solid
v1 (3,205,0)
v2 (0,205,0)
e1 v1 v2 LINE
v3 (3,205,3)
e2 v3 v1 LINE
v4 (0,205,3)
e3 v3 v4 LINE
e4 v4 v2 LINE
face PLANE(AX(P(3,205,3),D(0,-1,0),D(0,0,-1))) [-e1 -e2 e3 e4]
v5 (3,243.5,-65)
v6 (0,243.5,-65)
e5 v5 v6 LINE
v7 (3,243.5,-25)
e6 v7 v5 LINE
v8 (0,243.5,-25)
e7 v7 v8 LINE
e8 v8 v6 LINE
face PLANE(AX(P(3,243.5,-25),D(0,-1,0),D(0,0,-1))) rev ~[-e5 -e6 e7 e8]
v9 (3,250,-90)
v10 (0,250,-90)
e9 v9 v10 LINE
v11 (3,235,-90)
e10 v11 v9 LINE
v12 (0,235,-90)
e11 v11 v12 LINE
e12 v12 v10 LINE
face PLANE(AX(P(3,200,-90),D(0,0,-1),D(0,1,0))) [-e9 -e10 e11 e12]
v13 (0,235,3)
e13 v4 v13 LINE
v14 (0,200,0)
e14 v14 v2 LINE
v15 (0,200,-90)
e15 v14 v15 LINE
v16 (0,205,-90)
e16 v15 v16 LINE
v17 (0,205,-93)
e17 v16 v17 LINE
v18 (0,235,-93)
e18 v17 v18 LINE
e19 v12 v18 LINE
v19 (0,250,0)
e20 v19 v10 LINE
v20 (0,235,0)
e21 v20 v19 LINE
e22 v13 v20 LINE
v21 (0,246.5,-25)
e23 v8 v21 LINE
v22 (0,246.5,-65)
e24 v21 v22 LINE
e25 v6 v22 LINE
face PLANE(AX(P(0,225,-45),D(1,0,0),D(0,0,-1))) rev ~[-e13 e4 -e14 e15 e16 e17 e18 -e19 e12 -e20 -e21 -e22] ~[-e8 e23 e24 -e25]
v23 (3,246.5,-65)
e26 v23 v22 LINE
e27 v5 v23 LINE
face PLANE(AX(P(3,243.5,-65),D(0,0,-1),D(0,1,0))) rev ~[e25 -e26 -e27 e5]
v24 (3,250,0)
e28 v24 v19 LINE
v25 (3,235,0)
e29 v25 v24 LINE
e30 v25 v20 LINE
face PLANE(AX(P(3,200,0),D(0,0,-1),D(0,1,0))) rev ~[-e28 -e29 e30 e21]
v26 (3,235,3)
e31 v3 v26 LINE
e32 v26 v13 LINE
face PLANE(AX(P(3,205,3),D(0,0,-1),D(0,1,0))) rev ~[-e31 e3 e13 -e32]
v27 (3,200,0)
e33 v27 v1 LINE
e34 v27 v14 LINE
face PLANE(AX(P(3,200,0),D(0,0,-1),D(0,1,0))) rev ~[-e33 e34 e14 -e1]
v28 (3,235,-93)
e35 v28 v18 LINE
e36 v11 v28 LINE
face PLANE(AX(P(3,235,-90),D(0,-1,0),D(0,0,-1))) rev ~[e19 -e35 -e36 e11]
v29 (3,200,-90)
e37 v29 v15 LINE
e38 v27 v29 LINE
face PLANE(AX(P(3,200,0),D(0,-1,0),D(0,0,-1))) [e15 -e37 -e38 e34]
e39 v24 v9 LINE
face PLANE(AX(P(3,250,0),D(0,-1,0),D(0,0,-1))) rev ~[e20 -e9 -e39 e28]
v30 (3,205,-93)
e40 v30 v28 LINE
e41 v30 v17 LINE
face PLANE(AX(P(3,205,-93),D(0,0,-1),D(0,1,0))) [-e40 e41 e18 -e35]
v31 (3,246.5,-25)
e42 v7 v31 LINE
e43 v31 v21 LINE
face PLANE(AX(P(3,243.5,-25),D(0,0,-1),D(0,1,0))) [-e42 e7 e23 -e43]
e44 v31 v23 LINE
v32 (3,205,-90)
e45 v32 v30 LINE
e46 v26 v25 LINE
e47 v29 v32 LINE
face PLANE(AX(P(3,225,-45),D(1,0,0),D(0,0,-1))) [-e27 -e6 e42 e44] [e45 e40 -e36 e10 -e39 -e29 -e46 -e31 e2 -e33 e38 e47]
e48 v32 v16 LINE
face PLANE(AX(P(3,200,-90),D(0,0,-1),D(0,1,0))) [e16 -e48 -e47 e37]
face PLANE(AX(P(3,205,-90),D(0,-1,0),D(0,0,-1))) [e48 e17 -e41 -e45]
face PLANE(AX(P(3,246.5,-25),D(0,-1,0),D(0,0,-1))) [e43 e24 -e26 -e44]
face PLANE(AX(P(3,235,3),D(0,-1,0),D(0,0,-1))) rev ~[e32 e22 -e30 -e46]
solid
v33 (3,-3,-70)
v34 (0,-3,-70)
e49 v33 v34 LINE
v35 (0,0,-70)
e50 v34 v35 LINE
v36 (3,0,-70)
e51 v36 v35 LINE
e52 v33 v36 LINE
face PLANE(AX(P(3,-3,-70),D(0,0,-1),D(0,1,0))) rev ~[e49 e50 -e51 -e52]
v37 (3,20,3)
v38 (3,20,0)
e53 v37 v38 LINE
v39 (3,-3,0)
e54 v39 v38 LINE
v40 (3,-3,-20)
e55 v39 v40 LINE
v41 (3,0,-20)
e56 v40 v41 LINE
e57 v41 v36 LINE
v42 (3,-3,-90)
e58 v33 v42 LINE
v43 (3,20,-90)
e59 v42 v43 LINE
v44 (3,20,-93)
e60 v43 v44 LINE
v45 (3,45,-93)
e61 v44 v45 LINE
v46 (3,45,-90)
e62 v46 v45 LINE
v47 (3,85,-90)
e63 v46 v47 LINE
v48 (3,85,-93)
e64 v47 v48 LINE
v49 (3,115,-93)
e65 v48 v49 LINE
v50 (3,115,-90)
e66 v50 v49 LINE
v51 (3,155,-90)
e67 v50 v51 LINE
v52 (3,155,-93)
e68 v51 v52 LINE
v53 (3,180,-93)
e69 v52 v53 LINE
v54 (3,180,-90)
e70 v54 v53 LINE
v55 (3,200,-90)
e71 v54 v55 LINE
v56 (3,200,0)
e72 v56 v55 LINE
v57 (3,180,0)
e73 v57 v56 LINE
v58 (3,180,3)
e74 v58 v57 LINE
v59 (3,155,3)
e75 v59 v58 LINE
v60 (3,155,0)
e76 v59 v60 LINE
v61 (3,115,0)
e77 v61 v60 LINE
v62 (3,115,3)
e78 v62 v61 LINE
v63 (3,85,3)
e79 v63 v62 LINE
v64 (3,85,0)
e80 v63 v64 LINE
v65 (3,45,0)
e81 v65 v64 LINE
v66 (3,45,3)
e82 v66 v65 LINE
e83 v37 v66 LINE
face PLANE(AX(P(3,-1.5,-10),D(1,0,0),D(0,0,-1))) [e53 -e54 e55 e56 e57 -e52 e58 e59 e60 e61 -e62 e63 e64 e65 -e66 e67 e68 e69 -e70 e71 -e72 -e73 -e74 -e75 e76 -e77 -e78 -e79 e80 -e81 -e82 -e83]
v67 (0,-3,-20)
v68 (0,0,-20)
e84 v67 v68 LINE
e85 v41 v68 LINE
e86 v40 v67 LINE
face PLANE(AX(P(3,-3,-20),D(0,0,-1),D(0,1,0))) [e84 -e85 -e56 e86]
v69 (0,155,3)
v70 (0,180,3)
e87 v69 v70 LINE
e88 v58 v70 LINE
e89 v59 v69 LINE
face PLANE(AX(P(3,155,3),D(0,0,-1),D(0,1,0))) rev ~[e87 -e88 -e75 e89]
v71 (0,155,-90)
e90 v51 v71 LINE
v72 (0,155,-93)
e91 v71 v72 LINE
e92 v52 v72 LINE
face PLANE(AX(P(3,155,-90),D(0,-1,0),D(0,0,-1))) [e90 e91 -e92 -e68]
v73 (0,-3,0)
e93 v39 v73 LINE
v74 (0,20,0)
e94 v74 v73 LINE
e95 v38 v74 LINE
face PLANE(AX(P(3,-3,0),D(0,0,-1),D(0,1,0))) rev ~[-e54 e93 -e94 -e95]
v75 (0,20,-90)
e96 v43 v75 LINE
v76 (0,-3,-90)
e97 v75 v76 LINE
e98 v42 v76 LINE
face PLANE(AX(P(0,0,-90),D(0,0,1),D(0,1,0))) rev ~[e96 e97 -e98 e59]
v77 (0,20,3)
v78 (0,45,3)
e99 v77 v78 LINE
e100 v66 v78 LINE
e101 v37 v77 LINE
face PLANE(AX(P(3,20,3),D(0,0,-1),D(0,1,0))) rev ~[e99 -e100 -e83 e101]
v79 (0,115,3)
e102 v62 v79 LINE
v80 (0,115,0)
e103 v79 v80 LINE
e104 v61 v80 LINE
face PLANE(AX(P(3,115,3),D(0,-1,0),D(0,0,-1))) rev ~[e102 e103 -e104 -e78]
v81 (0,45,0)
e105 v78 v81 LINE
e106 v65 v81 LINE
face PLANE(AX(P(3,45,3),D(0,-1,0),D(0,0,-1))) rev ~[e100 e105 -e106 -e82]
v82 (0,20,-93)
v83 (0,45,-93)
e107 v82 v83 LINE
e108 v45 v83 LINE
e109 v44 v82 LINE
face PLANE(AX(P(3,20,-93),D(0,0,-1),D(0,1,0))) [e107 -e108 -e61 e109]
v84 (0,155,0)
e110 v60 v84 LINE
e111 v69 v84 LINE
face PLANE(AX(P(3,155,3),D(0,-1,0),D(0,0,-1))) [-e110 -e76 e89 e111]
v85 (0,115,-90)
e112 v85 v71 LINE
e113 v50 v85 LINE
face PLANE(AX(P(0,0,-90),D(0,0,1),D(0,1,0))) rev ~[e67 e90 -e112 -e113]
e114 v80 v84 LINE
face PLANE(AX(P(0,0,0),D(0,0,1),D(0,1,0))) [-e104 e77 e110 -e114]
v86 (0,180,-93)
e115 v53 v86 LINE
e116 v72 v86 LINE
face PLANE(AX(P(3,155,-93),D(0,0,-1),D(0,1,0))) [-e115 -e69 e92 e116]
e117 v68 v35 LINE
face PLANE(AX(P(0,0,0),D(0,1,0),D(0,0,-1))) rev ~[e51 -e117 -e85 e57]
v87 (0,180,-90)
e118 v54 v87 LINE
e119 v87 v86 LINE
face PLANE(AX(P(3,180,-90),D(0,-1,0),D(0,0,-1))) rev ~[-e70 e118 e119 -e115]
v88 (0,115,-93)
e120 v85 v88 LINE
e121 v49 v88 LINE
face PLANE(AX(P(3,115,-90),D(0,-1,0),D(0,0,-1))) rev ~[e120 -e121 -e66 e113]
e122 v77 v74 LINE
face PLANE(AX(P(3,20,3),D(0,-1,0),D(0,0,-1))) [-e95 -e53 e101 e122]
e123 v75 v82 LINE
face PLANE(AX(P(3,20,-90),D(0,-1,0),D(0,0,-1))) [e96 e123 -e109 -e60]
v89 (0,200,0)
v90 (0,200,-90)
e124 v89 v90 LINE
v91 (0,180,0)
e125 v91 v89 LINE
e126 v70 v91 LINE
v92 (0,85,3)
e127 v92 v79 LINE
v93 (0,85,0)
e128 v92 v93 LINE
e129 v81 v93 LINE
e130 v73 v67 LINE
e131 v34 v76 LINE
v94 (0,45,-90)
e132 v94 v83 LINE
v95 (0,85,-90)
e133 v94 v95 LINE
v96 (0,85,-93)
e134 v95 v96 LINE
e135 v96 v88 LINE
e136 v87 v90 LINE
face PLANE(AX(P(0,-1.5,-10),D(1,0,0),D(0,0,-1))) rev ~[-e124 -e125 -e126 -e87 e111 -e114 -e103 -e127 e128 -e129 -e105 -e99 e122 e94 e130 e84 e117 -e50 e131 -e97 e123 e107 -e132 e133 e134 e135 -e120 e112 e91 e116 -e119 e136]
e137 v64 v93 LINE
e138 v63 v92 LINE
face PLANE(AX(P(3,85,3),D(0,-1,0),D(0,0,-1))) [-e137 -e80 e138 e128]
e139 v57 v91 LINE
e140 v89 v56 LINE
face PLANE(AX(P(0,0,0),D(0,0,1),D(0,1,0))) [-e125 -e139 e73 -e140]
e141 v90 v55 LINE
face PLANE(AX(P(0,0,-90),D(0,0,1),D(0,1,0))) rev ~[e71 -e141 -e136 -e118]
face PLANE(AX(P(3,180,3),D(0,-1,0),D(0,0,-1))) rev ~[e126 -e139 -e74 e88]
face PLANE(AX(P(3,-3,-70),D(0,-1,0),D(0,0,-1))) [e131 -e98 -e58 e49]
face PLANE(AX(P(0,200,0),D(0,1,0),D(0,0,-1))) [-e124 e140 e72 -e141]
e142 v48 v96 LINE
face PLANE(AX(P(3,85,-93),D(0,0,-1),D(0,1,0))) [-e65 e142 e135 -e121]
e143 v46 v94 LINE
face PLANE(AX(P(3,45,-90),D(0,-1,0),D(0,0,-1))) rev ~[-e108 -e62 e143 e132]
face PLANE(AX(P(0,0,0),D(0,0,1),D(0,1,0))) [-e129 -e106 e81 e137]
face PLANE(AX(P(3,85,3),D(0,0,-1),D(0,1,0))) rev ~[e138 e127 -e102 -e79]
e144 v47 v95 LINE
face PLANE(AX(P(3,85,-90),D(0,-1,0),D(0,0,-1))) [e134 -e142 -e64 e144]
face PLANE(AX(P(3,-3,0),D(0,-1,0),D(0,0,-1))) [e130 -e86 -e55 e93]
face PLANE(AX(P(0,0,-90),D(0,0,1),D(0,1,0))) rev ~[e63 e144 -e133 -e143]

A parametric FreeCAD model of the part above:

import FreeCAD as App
import Part
import Sketcher


def add_polygon(sketch, points):
    """Adds a closed chain of lines whose ends are joined by coincident constraints."""
    first, n = sketch.GeometryCount, len(points)
    for a, b in zip(points, points[1:] + points[:1]):
        sketch.addGeometry(Part.LineSegment(App.Vector(*a, 0), App.Vector(*b, 0)), False)
    for i in range(n):
        sketch.addConstraint(Sketcher.Constraint("Coincident", first + i, 2, first + (i + 1) % n, 1))

doc = App.newDocument("Part")
params = doc.addObject("Spreadsheet::Sheet", "Params")
for row, (alias, value) in enumerate([
    ("sketch1_width", "200 mm"),
    ("sketch1_height", "90 mm"),
    ("pad1_length", "3 mm"),
    ("sketch2_width", "25 mm"),
    ("sketch2_width2", "30 mm"),
    ("sketch2_height", "3 mm"),
    ("sketch3_width", "3 mm"),
    ("sketch3_height", "20 mm"),
    ("pad3_length", "3 mm"),
    ("sketch4_width", "50 mm"),
    ("sketch4_height", "90 mm"),
    ("pad4_length", "3 mm"),
    ("sketch5_width", "3 mm"),
    ("sketch5_height", "40 mm"),
    ("pocket1_length", "3 mm"),
    ("sketch6_width", "30 mm"),
    ("sketch6_height", "3 mm"),
    ("pad5_length", "3 mm"),
], start=1):
    params.set(f"A{row}", alias)
    params.set(f"B{row}", "=" + value)
    params.setAlias(f"B{row}", alias)

body = doc.addObject("PartDesign::Body", "Body")

# Sketch on YZ plane
sketch1 = doc.addObject("Sketcher::SketchObject", "Sketch")
body.addObject(sketch1)
sketch1.AttachmentSupport = (doc.YZ_Plane, [""])
sketch1.MapMode = "FlatFace"
add_polygon(sketch1, [(200, 0), (0, 0), (0, -90), (200, -90)])  # lines 0-3
sketch1.addConstraint(Sketcher.Constraint("Horizontal", 0))
sketch1.addConstraint(Sketcher.Constraint("Vertical", 1))
sketch1.addConstraint(Sketcher.Constraint("Horizontal", 2))
sketch1.addConstraint(Sketcher.Constraint("Vertical", 3))
sketch1.addConstraint(Sketcher.Constraint("Coincident", 0, 2, -1, 1))
sketch1.addConstraint(Sketcher.Constraint("DistanceX", 0, 2, 0, 1, 200.0))
sketch1.addConstraint(Sketcher.Constraint("DistanceY", 1, 2, 1, 1, 90.0))
sketch1.setExpression("Constraints[9]", "Params.sketch1_width")
sketch1.setExpression("Constraints[10]", "Params.sketch1_height")
pad1 = doc.addObject("PartDesign::Pad", "Pad")
body.addObject(pad1)
pad1.Profile = sketch1
pad1.setExpression("Length", "Params.pad1_length")

# Sketch on YZ plane
sketch2 = doc.addObject("Sketcher::SketchObject", "Sketch001")
body.addObject(sketch2)
sketch2.AttachmentSupport = (doc.YZ_Plane, [""])
sketch2.MapMode = "FlatFace"
sketch2.AttachmentOffset = App.Placement(App.Vector(0, 0, 3), App.Rotation())
add_polygon(sketch2, [(180, 3), (155, 3), (155, 0), (180, 0)])  # lines 0-3
add_polygon(sketch2, [(115, 3), (85, 3), (85, 0), (115, 0)])  # lines 4-7
add_polygon(sketch2, [(45, 3), (20, 3), (20, 0), (45, 0)])  # lines 8-11
add_polygon(sketch2, [(45, -90), (20, -90), (20, -93), (45, -93)])  # lines 12-15
add_polygon(sketch2, [(115, -90), (85, -90), (85, -93), (115, -93)])  # lines 16-19
add_polygon(sketch2, [(180, -90), (155, -90), (155, -93), (180, -93)])  # lines 20-23
sketch2.addConstraint(Sketcher.Constraint("Horizontal", 0))
sketch2.addConstraint(Sketcher.Constraint("Vertical", 1))
sketch2.addConstraint(Sketcher.Constraint("Horizontal", 2))
sketch2.addConstraint(Sketcher.Constraint("Vertical", 3))
sketch2.addConstraint(Sketcher.Constraint("Horizontal", 4))
sketch2.addConstraint(Sketcher.Constraint("Vertical", 5))
sketch2.addConstraint(Sketcher.Constraint("Horizontal", 6))
sketch2.addConstraint(Sketcher.Constraint("Vertical", 7))
sketch2.addConstraint(Sketcher.Constraint("Horizontal", 8))
sketch2.addConstraint(Sketcher.Constraint("Vertical", 9))
sketch2.addConstraint(Sketcher.Constraint("Horizontal", 10))
sketch2.addConstraint(Sketcher.Constraint("Vertical", 11))
sketch2.addConstraint(Sketcher.Constraint("Horizontal", 12))
sketch2.addConstraint(Sketcher.Constraint("Vertical", 13))
sketch2.addConstraint(Sketcher.Constraint("Horizontal", 14))
sketch2.addConstraint(Sketcher.Constraint("Vertical", 15))
sketch2.addConstraint(Sketcher.Constraint("Horizontal", 16))
sketch2.addConstraint(Sketcher.Constraint("Vertical", 17))
sketch2.addConstraint(Sketcher.Constraint("Horizontal", 18))
sketch2.addConstraint(Sketcher.Constraint("Vertical", 19))
sketch2.addConstraint(Sketcher.Constraint("Horizontal", 20))
sketch2.addConstraint(Sketcher.Constraint("Vertical", 21))
sketch2.addConstraint(Sketcher.Constraint("Horizontal", 22))
sketch2.addConstraint(Sketcher.Constraint("Vertical", 23))
sketch2.addConstraint(Sketcher.Constraint("PointOnObject", 1, 2, -1))
sketch2.addConstraint(Sketcher.Constraint("PointOnObject", 5, 2, -1))
sketch2.addConstraint(Sketcher.Constraint("PointOnObject", 9, 2, -1))
sketch2.addConstraint(Sketcher.Constraint("Horizontal", 3, 2, 4, 2))
sketch2.addConstraint(Sketcher.Constraint("Horizontal", 7, 2, 8, 2))
sketch2.addConstraint(Sketcher.Constraint("Horizontal", 15, 2, 16, 2))
sketch2.addConstraint(Sketcher.Constraint("Horizontal", 14, 2, 17, 2))
sketch2.addConstraint(Sketcher.Constraint("Horizontal", 19, 2, 20, 2))
sketch2.addConstraint(Sketcher.Constraint("Horizontal", 18, 2, 21, 2))
sketch2.addConstraint(Sketcher.Constraint("Vertical", 9, 2, 12, 2))
sketch2.addConstraint(Sketcher.Constraint("Vertical", 11, 2, 14, 2))
sketch2.addConstraint(Sketcher.Constraint("Vertical", 5, 2, 16, 2))
sketch2.addConstraint(Sketcher.Constraint("Vertical", 7, 2, 18, 2))
sketch2.addConstraint(Sketcher.Constraint("Vertical", 1, 2, 20, 2))
sketch2.addConstraint(Sketcher.Constraint("Vertical", 3, 2, 22, 2))
sketch2.addConstraint(Sketcher.Constraint("Equal", 2, 8))
sketch2.addConstraint(Sketcher.Constraint("Equal", 11, 13))
sketch2.addConstraint(Sketcher.Constraint("DistanceX", 0, 2, 0, 1, 25.0))
sketch2.addConstraint(Sketcher.Constraint("DistanceX", 4, 2, 4, 1, 30.0))
sketch2.addConstraint(Sketcher.Constraint("DistanceY", 1, 2, 1, 1, 3.0))
sketch2.addConstraint(Sketcher.Constraint("DistanceX", -1, 1, 0, 2, 155.0))
sketch2.addConstraint(Sketcher.Constraint("DistanceX", -1, 1, 4, 2, 85.0))
sketch2.addConstraint(Sketcher.Constraint("DistanceX", -1, 1, 8, 2, 20.0))
sketch2.addConstraint(Sketcher.Constraint("DistanceY", 12, 2, -1, 1, 90.0))
sketch2.setExpression("Constraints[65]", "Params.sketch2_width")
sketch2.setExpression("Constraints[66]", "Params.sketch2_width2")
sketch2.setExpression("Constraints[67]", "Params.sketch2_height")
pad2 = doc.addObject("PartDesign::Pad", "Pad001")
body.addObject(pad2)
pad2.Profile = sketch2
pad2.Type = "UpToLast"
pad2.Reversed = True

# Sketch on YZ plane
sketch3 = doc.addObject("Sketcher::SketchObject", "Sketch002")
body.addObject(sketch3)
sketch3.AttachmentSupport = (doc.YZ_Plane, [""])
sketch3.MapMode = "FlatFace"
sketch3.AttachmentOffset = App.Placement(App.Vector(0, 0, 3), App.Rotation())
add_polygon(sketch3, [(0, 0), (-3, 0), (-3, -20), (0, -20)])  # lines 0-3
add_polygon(sketch3, [(0, -70), (-3, -70), (-3, -90), (0, -90)])  # lines 4-7
sketch3.addConstraint(Sketcher.Constraint("Horizontal", 0))
sketch3.addConstraint(Sketcher.Constraint("Vertical", 1))
sketch3.addConstraint(Sketcher.Constraint("Horizontal", 2))
sketch3.addConstraint(Sketcher.Constraint("Vertical", 3))
sketch3.addConstraint(Sketcher.Constraint("Horizontal", 4))
sketch3.addConstraint(Sketcher.Constraint("Vertical", 5))
sketch3.addConstraint(Sketcher.Constraint("Horizontal", 6))
sketch3.addConstraint(Sketcher.Constraint("Vertical", 7))
sketch3.addConstraint(Sketcher.Constraint("Coincident", 3, 2, -1, 1))
sketch3.addConstraint(Sketcher.Constraint("PointOnObject", 6, 2, -2))
sketch3.addConstraint(Sketcher.Constraint("Vertical", 1, 2, 4, 2))
sketch3.addConstraint(Sketcher.Constraint("Equal", 3, 5))
sketch3.addConstraint(Sketcher.Constraint("DistanceX", 0, 2, 0, 1, 3.0))
sketch3.addConstraint(Sketcher.Constraint("DistanceY", 1, 2, 1, 1, 20.0))
sketch3.addConstraint(Sketcher.Constraint("DistanceY", 4, 2, -1, 1, 70.0))
sketch3.setExpression("Constraints[20]", "Params.sketch3_width")
sketch3.setExpression("Constraints[21]", "Params.sketch3_height")
pad3 = doc.addObject("PartDesign::Pad", "Pad002")
body.addObject(pad3)
pad3.Profile = sketch3
pad3.setExpression("Length", "Params.pad3_length")
pad3.Reversed = True
body2 = doc.addObject("PartDesign::Body", "Body001")

# Sketch on YZ plane
sketch4 = doc.addObject("Sketcher::SketchObject", "Sketch003")
body2.addObject(sketch4)
sketch4.AttachmentSupport = (doc.getObject("YZ_Plane001"), [""])
sketch4.MapMode = "FlatFace"
sketch4.AttachmentOffset = App.Placement(App.Vector(0, 0, 3), App.Rotation())
add_polygon(sketch4, [(250, 0), (200, 0), (200, -90), (250, -90)])  # lines 0-3
sketch4.addConstraint(Sketcher.Constraint("Horizontal", 0))
sketch4.addConstraint(Sketcher.Constraint("Vertical", 1))
sketch4.addConstraint(Sketcher.Constraint("Horizontal", 2))
sketch4.addConstraint(Sketcher.Constraint("Vertical", 3))
sketch4.addConstraint(Sketcher.Constraint("PointOnObject", 0, 2, -1))
sketch4.addConstraint(Sketcher.Constraint("DistanceX", 0, 2, 0, 1, 50.0))
sketch4.addConstraint(Sketcher.Constraint("DistanceY", 1, 2, 1, 1, 90.0))
sketch4.addConstraint(Sketcher.Constraint("DistanceX", -1, 1, 0, 2, 200.0))
sketch4.setExpression("Constraints[9]", "Params.sketch4_width")
sketch4.setExpression("Constraints[10]", "Params.sketch4_height")
pad4 = doc.addObject("PartDesign::Pad", "Pad003")
body2.addObject(pad4)
pad4.Profile = sketch4
pad4.setExpression("Length", "Params.pad4_length")
pad4.Reversed = True

# Sketch on YZ plane
sketch5 = doc.addObject("Sketcher::SketchObject", "Sketch004")
body2.addObject(sketch5)
sketch5.AttachmentSupport = (doc.getObject("YZ_Plane001"), [""])
sketch5.MapMode = "FlatFace"
sketch5.AttachmentOffset = App.Placement(App.Vector(0, 0, 3), App.Rotation())
add_polygon(sketch5, [(246.5, -25), (243.5, -25), (243.5, -65), (246.5, -65)])  # lines 0-3
sketch5.addConstraint(Sketcher.Constraint("Horizontal", 0))
sketch5.addConstraint(Sketcher.Constraint("Vertical", 1))
sketch5.addConstraint(Sketcher.Constraint("Horizontal", 2))
sketch5.addConstraint(Sketcher.Constraint("Vertical", 3))
sketch5.addConstraint(Sketcher.Constraint("DistanceX", 0, 2, 0, 1, 3.0))
sketch5.addConstraint(Sketcher.Constraint("DistanceY", 1, 2, 1, 1, 40.0))
sketch5.addConstraint(Sketcher.Constraint("DistanceY", 0, 2, -1, 1, 25.0))
sketch5.addConstraint(Sketcher.Constraint("DistanceX", -1, 1, 0, 2, 243.5))
sketch5.setExpression("Constraints[8]", "Params.sketch5_width")
sketch5.setExpression("Constraints[9]", "Params.sketch5_height")
pocket1 = doc.addObject("PartDesign::Pocket", "Pocket")
body2.addObject(pocket1)
pocket1.Profile = sketch5
pocket1.setExpression("Length", "Params.pocket1_length")

# Sketch on YZ plane
sketch6 = doc.addObject("Sketcher::SketchObject", "Sketch005")
body2.addObject(sketch6)
sketch6.AttachmentSupport = (doc.getObject("YZ_Plane001"), [""])
sketch6.MapMode = "FlatFace"
sketch6.AttachmentOffset = App.Placement(App.Vector(0, 0, 3), App.Rotation())
add_polygon(sketch6, [(235, 3), (205, 3), (205, 0), (235, 0)])  # lines 0-3
add_polygon(sketch6, [(235, -90), (205, -90), (205, -93), (235, -93)])  # lines 4-7
sketch6.addConstraint(Sketcher.Constraint("Horizontal", 0))
sketch6.addConstraint(Sketcher.Constraint("Vertical", 1))
sketch6.addConstraint(Sketcher.Constraint("Horizontal", 2))
sketch6.addConstraint(Sketcher.Constraint("Vertical", 3))
sketch6.addConstraint(Sketcher.Constraint("Horizontal", 4))
sketch6.addConstraint(Sketcher.Constraint("Vertical", 5))
sketch6.addConstraint(Sketcher.Constraint("Horizontal", 6))
sketch6.addConstraint(Sketcher.Constraint("Vertical", 7))
sketch6.addConstraint(Sketcher.Constraint("PointOnObject", 1, 2, -1))
sketch6.addConstraint(Sketcher.Constraint("Vertical", 1, 2, 4, 2))
sketch6.addConstraint(Sketcher.Constraint("Vertical", 3, 2, 6, 2))
sketch6.addConstraint(Sketcher.Constraint("Equal", 3, 5))
sketch6.addConstraint(Sketcher.Constraint("DistanceX", 0, 2, 0, 1, 30.0))
sketch6.addConstraint(Sketcher.Constraint("DistanceY", 1, 2, 1, 1, 3.0))
sketch6.addConstraint(Sketcher.Constraint("DistanceX", -1, 1, 0, 2, 205.0))
sketch6.addConstraint(Sketcher.Constraint("DistanceY", 4, 2, -1, 1, 90.0))
sketch6.setExpression("Constraints[20]", "Params.sketch6_width")
sketch6.setExpression("Constraints[21]", "Params.sketch6_height")
pad5 = doc.addObject("PartDesign::Pad", "Pad004")
body2.addObject(pad5)
pad5.Profile = sketch6
pad5.setExpression("Length", "Params.pad5_length")
pad5.Reversed = True

doc.recompute()
